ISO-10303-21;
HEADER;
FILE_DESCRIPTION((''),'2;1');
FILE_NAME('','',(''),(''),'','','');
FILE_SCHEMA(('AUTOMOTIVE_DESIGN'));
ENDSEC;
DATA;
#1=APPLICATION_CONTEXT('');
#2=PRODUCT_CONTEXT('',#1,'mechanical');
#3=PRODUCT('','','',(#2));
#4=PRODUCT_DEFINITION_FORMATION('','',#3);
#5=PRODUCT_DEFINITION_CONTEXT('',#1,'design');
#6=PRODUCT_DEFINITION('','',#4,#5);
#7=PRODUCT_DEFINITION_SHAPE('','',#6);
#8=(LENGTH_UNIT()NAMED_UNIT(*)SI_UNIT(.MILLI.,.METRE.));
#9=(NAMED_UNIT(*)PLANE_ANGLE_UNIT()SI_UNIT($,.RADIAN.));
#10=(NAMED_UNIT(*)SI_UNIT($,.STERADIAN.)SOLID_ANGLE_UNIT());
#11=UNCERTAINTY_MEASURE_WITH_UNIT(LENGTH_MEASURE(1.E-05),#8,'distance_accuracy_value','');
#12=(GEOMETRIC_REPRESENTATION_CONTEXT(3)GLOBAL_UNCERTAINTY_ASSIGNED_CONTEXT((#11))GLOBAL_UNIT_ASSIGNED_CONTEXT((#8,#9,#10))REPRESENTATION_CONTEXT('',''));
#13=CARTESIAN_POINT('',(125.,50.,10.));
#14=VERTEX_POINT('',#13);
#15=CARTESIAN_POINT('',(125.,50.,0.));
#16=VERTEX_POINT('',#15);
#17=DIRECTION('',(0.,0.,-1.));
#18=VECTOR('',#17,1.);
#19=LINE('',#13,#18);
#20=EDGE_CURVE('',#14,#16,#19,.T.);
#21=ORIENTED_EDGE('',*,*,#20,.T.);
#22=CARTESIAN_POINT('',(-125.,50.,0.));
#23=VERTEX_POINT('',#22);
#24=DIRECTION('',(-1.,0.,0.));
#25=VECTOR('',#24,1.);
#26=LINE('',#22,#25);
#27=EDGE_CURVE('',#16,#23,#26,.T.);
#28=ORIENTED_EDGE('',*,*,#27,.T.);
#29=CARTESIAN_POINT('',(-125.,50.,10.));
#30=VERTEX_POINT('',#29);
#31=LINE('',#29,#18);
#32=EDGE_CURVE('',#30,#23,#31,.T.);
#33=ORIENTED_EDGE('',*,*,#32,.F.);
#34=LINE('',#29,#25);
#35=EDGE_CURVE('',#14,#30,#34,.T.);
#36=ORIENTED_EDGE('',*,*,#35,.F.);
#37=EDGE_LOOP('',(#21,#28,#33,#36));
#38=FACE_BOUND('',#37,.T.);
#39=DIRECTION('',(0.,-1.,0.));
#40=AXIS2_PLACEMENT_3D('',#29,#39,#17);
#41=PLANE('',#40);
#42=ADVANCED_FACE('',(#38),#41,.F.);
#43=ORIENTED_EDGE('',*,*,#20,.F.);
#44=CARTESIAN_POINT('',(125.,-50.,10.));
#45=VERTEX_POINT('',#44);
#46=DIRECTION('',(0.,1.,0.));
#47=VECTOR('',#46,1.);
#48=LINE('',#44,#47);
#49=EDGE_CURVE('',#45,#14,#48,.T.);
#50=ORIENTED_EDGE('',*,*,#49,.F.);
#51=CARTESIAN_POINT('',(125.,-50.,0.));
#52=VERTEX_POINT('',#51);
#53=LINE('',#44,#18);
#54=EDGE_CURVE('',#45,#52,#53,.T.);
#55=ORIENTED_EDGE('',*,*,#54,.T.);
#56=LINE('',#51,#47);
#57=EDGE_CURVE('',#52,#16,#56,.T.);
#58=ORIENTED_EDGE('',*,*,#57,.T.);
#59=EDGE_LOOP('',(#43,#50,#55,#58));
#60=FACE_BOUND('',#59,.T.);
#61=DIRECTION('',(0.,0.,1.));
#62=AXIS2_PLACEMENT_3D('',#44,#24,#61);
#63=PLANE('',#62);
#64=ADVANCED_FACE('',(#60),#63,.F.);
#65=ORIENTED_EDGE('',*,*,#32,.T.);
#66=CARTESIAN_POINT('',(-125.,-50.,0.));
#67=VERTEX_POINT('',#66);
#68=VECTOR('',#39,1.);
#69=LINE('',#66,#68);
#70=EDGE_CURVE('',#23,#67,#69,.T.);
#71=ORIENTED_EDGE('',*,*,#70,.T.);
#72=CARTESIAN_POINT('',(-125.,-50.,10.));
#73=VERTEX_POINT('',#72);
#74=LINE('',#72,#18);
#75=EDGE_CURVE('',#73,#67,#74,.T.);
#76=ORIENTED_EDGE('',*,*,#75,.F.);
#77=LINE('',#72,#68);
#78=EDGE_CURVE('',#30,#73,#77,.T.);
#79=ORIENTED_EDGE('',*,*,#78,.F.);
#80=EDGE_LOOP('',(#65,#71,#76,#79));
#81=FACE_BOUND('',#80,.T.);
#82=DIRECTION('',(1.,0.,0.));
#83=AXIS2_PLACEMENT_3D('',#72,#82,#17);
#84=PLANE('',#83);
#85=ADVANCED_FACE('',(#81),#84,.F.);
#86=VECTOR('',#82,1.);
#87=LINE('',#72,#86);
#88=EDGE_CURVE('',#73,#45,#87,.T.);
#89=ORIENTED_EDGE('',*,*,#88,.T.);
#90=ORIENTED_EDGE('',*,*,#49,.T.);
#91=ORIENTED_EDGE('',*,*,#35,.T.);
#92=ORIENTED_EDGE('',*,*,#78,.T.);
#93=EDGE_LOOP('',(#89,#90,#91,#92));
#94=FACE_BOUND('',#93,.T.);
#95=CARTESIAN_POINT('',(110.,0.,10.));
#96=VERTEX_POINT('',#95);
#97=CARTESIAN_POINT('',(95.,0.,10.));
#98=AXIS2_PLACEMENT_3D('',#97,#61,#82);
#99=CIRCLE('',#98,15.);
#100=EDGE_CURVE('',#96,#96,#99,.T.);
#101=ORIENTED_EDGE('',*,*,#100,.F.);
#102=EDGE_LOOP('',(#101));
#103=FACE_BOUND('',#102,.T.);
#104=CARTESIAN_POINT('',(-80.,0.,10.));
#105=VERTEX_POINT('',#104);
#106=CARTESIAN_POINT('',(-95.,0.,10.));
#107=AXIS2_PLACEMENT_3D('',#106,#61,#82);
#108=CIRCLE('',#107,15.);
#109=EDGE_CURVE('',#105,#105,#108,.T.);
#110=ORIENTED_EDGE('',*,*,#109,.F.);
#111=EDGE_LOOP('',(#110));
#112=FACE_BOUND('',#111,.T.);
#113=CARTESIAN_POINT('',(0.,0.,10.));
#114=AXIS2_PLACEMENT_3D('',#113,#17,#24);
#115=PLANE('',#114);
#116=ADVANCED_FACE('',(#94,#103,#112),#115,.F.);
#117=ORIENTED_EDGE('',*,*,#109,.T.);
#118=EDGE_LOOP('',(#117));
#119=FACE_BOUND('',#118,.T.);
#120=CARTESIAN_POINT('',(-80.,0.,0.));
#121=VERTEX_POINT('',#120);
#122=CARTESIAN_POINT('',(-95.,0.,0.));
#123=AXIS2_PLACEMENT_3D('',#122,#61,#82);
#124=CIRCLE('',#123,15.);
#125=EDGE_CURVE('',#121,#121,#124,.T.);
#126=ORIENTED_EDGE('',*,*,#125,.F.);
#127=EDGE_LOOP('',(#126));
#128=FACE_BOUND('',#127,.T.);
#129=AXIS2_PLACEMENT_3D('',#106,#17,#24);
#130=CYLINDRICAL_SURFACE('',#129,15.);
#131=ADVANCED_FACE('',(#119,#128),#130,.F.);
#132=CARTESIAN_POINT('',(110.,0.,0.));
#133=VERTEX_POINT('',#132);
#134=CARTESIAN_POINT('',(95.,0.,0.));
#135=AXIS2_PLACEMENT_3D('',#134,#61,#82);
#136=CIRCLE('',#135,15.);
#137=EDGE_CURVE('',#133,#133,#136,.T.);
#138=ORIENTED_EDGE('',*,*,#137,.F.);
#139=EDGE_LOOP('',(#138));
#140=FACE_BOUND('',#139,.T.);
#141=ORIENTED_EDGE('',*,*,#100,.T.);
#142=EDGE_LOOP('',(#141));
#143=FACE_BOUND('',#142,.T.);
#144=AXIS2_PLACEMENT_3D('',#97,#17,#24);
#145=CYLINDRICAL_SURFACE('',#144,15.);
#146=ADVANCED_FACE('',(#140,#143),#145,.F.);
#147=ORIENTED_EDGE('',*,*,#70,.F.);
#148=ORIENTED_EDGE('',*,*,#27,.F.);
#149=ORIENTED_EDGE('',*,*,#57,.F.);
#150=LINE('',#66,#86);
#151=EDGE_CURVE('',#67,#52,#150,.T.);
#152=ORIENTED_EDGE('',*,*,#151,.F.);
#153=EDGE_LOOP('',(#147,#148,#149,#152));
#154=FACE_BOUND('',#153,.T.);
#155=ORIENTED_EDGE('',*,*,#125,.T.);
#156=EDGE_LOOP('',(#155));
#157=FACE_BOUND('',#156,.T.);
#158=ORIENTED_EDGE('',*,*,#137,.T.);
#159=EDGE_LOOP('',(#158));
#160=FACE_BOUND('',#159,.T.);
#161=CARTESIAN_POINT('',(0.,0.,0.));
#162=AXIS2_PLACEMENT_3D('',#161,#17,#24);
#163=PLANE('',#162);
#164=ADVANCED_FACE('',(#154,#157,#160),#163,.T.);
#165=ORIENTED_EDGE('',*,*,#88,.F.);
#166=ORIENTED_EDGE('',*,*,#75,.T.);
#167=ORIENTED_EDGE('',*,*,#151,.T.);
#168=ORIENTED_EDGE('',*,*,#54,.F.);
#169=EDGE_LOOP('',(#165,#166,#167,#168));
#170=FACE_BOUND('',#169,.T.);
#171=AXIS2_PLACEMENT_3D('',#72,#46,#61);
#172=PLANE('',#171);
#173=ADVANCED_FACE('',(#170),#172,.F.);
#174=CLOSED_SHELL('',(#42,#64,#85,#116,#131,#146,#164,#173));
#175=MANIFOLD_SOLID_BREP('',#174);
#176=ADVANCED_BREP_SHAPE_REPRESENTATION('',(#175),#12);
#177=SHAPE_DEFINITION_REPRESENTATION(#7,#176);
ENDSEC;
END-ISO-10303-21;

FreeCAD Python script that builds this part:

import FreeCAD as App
import Part
import Sketcher


def add_polygon(sketch, points):
    """Adds a closed chain of lines whose ends are joined by coincident constraints."""
    first, n = sketch.GeometryCount, len(points)
    for a, b in zip(points, points[1:] + points[:1]):
        sketch.addGeometry(Part.LineSegment(App.Vector(*a, 0), App.Vector(*b, 0)), False)
    for i in range(n):
        sketch.addConstraint(Sketcher.Constraint("Coincident", first + i, 2, first + (i + 1) % n, 1))

doc = App.newDocument("Part")
body = doc.addObject("PartDesign::Body", "Body")

# Sketch on XY plane
sketch1 = doc.addObject("Sketcher::SketchObject", "Sketch")
body.addObject(sketch1)
sketch1.AttachmentSupport = (doc.XY_Plane, [""])
sketch1.MapMode = "FlatFace"
add_polygon(sketch1, [(-125, 50), (-125, -50), (125, -50), (125, 50)])  # lines 0-3
sketch1.addGeometry(Part.Circle(App.Vector(-95, 0, 0), App.Vector(0, 0, 1), 15), False)  # 4
sketch1.addGeometry(Part.Circle(App.Vector(95, 0, 0), App.Vector(0, 0, 1), 15), False)  # 5
sketch1.addConstraint([
    Sketcher.Constraint("Vertical", 0),
    Sketcher.Constraint("Horizontal", 1),
    Sketcher.Constraint("Vertical", 2),
    Sketcher.Constraint("Horizontal", 3),
    Sketcher.Constraint("Equal", 4, 5),
    Sketcher.Constraint("Symmetric", 4, 3, 5, 3, -1, 1),
    Sketcher.Constraint("Symmetric", 0, 2, 2, 2, -1, 1),
    Sketcher.Constraint("PointOnObject", 4, 3, -1),
    Sketcher.Constraint("Diameter", 4, 30.0),
    Sketcher.Constraint("DistanceX", 1, 1, 1, 2, 250.0),
    Sketcher.Constraint("DistanceY", 0, 2, 0, 1, 100.0),
    Sketcher.Constraint("DistanceX", 4, 3, -1, 1, 95.0),
])
pad1 = doc.addObject("PartDesign::Pad", "Pad")
body.addObject(pad1)
pad1.Profile = sketch1
pad1.Length = 10

doc.recompute()
